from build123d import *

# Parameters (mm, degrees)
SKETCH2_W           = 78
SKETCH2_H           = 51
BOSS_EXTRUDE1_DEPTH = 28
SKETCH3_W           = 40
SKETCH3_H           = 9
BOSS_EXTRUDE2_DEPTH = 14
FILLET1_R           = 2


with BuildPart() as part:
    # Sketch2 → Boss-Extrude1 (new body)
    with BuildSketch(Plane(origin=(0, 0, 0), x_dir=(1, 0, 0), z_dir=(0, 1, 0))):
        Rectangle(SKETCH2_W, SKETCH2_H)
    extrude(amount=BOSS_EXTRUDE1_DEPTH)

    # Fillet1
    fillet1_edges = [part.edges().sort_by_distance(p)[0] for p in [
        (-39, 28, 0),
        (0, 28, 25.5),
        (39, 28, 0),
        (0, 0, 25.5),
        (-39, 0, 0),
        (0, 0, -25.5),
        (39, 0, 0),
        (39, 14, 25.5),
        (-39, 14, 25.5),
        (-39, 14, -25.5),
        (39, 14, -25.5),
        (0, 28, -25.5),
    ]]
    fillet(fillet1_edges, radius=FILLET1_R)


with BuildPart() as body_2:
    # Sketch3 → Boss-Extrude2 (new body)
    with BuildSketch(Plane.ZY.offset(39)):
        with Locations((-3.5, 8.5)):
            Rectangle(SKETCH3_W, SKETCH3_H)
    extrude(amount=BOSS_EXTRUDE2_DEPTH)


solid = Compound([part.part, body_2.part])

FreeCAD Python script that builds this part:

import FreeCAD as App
import Part
import Sketcher
from FreeCAD import Vector

doc = App.newDocument("Part")
body = doc.addObject("PartDesign::Body", "Body")

sketch1 = body.newObject("Sketcher::SketchObject", "Sketch")
sketch1.AttachmentSupport = (doc.getObject("XZ_Plane"), [""])
sketch1.MapMode = "FlatFace"
sketch1.addGeometry(Part.LineSegment(Vector(-39, -25.5, 0), Vector(-39, 25.5, 0)), False)
sketch1.addGeometry(Part.LineSegment(Vector(-39, 25.5, 0), Vector(39, 25.5, 0)), False)
sketch1.addGeometry(Part.LineSegment(Vector(39, 25.5, 0), Vector(39, -25.5, 0)), False)
sketch1.addGeometry(Part.LineSegment(Vector(39, -25.5, 0), Vector(-39, -25.5, 0)), False)
sketch1.addConstraint(Sketcher.Constraint("Coincident", 0, 2, 1, 1))
sketch1.addConstraint(Sketcher.Constraint("Coincident", 1, 2, 2, 1))
sketch1.addConstraint(Sketcher.Constraint("Coincident", 2, 2, 3, 1))
sketch1.addConstraint(Sketcher.Constraint("Coincident", 3, 2, 0, 1))
sketch1.addConstraint(Sketcher.Constraint("Vertical", 0))
sketch1.addConstraint(Sketcher.Constraint("Horizontal", 1))
sketch1.addConstraint(Sketcher.Constraint("Vertical", 2))
sketch1.addConstraint(Sketcher.Constraint("Horizontal", 3))
sketch1.addConstraint(Sketcher.Constraint("Symmetric", 0, 2, 2, 2, -1, 1))
sketch1.addConstraint(Sketcher.Constraint("DistanceX", 1, 1, 1, 2, 78.0))
sketch1.addConstraint(Sketcher.Constraint("DistanceY", 0, 1, 0, 2, 51.0))
pad1 = body.newObject("PartDesign::Pad", "Pad")
pad1.Profile = sketch1
pad1.Length = 28
pad1.Reversed = True
doc.recompute()

fillet = body.newObject("PartDesign::Fillet", "Fillet")
fillet.Base = (pad1, ["Edge1"])
fillet.UseAllEdges = True
fillet.Radius = 2
body2 = doc.addObject("PartDesign::Body", "Body001")

sketch2 = body2.newObject("Sketcher::SketchObject", "Sketch001")
sketch2.AttachmentSupport = (doc.getObject("YZ_Plane001"), [""])
sketch2.MapMode = "FlatFace"
sketch2.AttachmentOffset = App.Placement(Vector(0, 0, -39), App.Rotation())
sketch2.addGeometry(Part.LineSegment(Vector(13, -23.5, 0), Vector(4, -23.5, 0)), False)
sketch2.addGeometry(Part.LineSegment(Vector(4, -23.5, 0), Vector(4, 16.5, 0)), False)
sketch2.addGeometry(Part.LineSegment(Vector(4, 16.5, 0), Vector(13, 16.5, 0)), False)
sketch2.addGeometry(Part.LineSegment(Vector(13, 16.5, 0), Vector(13, -23.5, 0)), False)
sketch2.addConstraint(Sketcher.Constraint("Coincident", 0, 2, 1, 1))
sketch2.addConstraint(Sketcher.Constraint("Coincident", 1, 2, 2, 1))
sketch2.addConstraint(Sketcher.Constraint("Coincident", 2, 2, 3, 1))
sketch2.addConstraint(Sketcher.Constraint("Coincident", 3, 2, 0, 1))
sketch2.addConstraint(Sketcher.Constraint("Horizontal", 0))
sketch2.addConstraint(Sketcher.Constraint("Vertical", 1))
sketch2.addConstraint(Sketcher.Constraint("Horizontal", 2))
sketch2.addConstraint(Sketcher.Constraint("Vertical", 3))
sketch2.addConstraint(Sketcher.Constraint("DistanceX", 0, 2, 0, 1, 9.0))
sketch2.addConstraint(Sketcher.Constraint("DistanceY", 1, 1, 1, 2, 40.0))
sketch2.addConstraint(Sketcher.Constraint("DistanceX", -1, 1, 0, 2, 4.0))
sketch2.addConstraint(Sketcher.Constraint("DistanceY", 0, 2, -1, 1, 23.5))
pad2 = body2.newObject("PartDesign::Pad", "Pad001")
pad2.Profile = sketch2
pad2.Length = 14
pad2.Reversed = True

doc.recompute()
